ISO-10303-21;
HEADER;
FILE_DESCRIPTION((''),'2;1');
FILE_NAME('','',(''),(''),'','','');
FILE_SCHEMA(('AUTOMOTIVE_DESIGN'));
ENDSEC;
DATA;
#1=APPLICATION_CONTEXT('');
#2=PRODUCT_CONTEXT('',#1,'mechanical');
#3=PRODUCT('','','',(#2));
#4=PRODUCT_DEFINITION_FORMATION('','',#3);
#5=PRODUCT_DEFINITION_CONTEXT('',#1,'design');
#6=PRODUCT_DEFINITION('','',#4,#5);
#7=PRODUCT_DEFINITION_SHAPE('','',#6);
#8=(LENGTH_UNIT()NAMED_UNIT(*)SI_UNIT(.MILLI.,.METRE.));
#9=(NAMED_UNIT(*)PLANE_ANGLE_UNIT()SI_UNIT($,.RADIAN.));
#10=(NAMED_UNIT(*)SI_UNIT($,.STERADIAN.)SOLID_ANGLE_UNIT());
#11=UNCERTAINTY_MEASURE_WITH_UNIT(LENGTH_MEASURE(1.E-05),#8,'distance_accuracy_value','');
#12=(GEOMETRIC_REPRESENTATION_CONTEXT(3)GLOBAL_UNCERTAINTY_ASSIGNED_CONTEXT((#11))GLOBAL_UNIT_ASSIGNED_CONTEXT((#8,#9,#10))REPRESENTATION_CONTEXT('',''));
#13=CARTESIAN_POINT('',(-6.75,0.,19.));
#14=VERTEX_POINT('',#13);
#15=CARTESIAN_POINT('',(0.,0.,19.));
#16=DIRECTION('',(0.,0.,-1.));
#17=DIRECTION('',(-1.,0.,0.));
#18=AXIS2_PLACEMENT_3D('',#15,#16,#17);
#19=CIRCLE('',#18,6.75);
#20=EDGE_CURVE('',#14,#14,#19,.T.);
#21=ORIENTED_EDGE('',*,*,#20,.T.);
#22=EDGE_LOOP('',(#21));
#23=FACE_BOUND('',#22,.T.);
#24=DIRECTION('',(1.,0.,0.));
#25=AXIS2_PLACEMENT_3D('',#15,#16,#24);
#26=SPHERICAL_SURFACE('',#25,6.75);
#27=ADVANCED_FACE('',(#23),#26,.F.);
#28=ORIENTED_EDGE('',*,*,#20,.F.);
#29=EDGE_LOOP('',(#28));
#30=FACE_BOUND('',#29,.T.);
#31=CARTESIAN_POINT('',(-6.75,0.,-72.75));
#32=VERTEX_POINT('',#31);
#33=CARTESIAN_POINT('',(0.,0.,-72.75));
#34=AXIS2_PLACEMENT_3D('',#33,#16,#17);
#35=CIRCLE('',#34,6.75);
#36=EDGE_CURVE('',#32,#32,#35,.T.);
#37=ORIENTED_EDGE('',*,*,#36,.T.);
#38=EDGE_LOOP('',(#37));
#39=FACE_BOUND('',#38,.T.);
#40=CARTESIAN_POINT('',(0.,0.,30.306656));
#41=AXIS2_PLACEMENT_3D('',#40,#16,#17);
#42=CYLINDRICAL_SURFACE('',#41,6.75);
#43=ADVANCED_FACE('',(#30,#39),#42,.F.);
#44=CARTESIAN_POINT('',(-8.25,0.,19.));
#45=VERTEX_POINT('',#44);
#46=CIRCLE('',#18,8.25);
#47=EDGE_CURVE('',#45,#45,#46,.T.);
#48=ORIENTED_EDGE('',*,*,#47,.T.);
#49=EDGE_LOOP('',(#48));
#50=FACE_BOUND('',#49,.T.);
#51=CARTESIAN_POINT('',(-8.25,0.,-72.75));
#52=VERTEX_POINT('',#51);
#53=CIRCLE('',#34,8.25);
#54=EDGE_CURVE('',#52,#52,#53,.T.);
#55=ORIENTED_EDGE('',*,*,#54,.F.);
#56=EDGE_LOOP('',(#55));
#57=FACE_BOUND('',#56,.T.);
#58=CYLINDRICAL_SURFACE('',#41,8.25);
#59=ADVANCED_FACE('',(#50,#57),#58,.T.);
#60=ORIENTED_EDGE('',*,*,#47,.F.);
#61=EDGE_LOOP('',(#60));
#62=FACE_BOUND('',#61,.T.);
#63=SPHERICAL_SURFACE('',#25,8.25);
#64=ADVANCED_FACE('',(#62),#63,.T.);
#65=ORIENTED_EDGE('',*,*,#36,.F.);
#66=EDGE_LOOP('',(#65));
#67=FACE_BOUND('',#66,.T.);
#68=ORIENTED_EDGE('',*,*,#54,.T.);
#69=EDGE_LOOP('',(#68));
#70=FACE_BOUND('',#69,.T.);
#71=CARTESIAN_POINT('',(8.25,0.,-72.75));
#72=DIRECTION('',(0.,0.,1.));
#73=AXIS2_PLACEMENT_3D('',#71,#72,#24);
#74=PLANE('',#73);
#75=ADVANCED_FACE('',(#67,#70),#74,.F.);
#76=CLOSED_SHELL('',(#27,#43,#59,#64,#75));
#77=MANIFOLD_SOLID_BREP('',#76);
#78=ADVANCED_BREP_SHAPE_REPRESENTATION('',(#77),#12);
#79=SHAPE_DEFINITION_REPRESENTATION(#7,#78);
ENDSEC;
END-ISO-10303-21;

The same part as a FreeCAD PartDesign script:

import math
import FreeCAD as App
import Part
import Sketcher
Q = App.Units.Quantity

doc = App.newDocument("Part")
body = doc.addObject("PartDesign::Body", "Body")

# Sketch on XZ plane
sketch1 = doc.addObject("Sketcher::SketchObject", "Sketch")
body.addObject(sketch1)
sketch1.AttachmentSupport = (doc.XZ_Plane, [""])
sketch1.MapMode = "FlatFace"
sketch1.addGeometry([
    Part.LineSegment(App.Vector(0, 25.8, 0), App.Vector(0, 27.2, 0)),  # 0
    Part.ArcOfCircle(Part.Circle(App.Vector(0, 19, 0), App.Vector(0, 0, 1), 8.2), math.radians(0), math.radians(90)),  # 1
    Part.LineSegment(App.Vector(8.2, 19, 0), App.Vector(8.2, -72.8, 0)),  # 2
    Part.LineSegment(App.Vector(8.2, -72.8, 0), App.Vector(6.8, -72.8, 0)),  # 3
    Part.LineSegment(App.Vector(6.8, -72.8, 0), App.Vector(6.8, 19, 0)),  # 4
    Part.ArcOfCircle(Part.Circle(App.Vector(0, 19, 0), App.Vector(0, 0, 1), 6.8), math.radians(0), math.radians(90)),  # 5
], False)
sketch1.addConstraint([
    Sketcher.Constraint("Coincident", 0, 2, 1, 2),
    Sketcher.Constraint("Tangent", 1, 1, 2, 1),
    Sketcher.Constraint("Coincident", 2, 2, 3, 1),
    Sketcher.Constraint("Coincident", 3, 2, 4, 1),
    Sketcher.Constraint("Tangent", 4, 2, 5, 1),
    Sketcher.Constraint("Coincident", 5, 2, 0, 1),
    Sketcher.Constraint("Vertical", 0),
    Sketcher.Constraint("Vertical", 2),
    Sketcher.Constraint("Horizontal", 3),
    Sketcher.Constraint("Vertical", 4),
    Sketcher.Constraint("Coincident", 5, 3, 1, 3),
    Sketcher.Constraint("PointOnObject", 1, 3, -2),
    Sketcher.Constraint("PointOnObject", 0, 2, -2),
    Sketcher.Constraint("Radius", 1, Q("8.25 mm")),
    Sketcher.Constraint("Radius", 5, Q("6.75 mm")),
    Sketcher.Constraint("DistanceY", -1, 1, 1, 3, Q("19 mm")),
    Sketcher.Constraint("DistanceY", 2, 2, 0, 2, Q("100 mm")),
])
revolution = doc.addObject("PartDesign::Revolution", "Revolution")
body.addObject(revolution)
revolution.Profile = sketch1
revolution.ReferenceAxis = (sketch1, ["V_Axis"])
revolution.Angle = 360

doc.recompute()
